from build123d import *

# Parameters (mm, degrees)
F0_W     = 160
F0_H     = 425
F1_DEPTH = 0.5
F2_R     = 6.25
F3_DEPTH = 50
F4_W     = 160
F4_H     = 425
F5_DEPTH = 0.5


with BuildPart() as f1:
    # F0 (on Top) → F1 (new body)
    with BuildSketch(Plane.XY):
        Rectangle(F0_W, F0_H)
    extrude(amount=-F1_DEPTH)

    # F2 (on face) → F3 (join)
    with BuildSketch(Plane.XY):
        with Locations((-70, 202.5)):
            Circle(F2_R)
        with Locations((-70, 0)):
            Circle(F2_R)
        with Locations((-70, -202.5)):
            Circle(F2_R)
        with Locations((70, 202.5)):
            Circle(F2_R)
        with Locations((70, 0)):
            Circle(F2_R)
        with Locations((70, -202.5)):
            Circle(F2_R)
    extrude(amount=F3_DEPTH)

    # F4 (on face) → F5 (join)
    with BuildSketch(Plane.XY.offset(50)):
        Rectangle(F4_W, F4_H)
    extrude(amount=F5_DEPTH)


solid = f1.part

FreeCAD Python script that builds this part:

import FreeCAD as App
import Part
import Sketcher
Q = App.Units.Quantity

doc = App.newDocument("Part")
body = doc.addObject("PartDesign::Body", "Body")

# Sketch on XY plane
sketch1 = doc.addObject("Sketcher::SketchObject", "Sketch")
body.addObject(sketch1)
sketch1.AttachmentSupport = (doc.XY_Plane, [""])
sketch1.MapMode = "FlatFace"
sketch1.addGeometry(Part.LineSegment(App.Vector(-80, 212.5, 0), App.Vector(-80, -212.5, 0)), False)
sketch1.addGeometry(Part.LineSegment(App.Vector(-80, -212.5, 0), App.Vector(80, -212.5, 0)), False)
sketch1.addGeometry(Part.LineSegment(App.Vector(80, -212.5, 0), App.Vector(80, 212.5, 0)), False)
sketch1.addGeometry(Part.LineSegment(App.Vector(80, 212.5, 0), App.Vector(-80, 212.5, 0)), False)
sketch1.addConstraint(Sketcher.Constraint("Coincident", 0, 2, 1, 1))
sketch1.addConstraint(Sketcher.Constraint("Coincident", 1, 2, 2, 1))
sketch1.addConstraint(Sketcher.Constraint("Coincident", 2, 2, 3, 1))
sketch1.addConstraint(Sketcher.Constraint("Coincident", 3, 2, 0, 1))
sketch1.addConstraint(Sketcher.Constraint("Vertical", 0))
sketch1.addConstraint(Sketcher.Constraint("Horizontal", 1))
sketch1.addConstraint(Sketcher.Constraint("Vertical", 2))
sketch1.addConstraint(Sketcher.Constraint("Horizontal", 3))
sketch1.addConstraint(Sketcher.Constraint("Symmetric", 0, 2, 2, 2, -1, 1))
sketch1.addConstraint(Sketcher.Constraint("DistanceX", 1, 1, 1, 2, Q("160 mm")))
sketch1.addConstraint(Sketcher.Constraint("DistanceY", 0, 2, 0, 1, Q("425 mm")))
pad1 = doc.addObject("PartDesign::Pad", "Pad")
body.addObject(pad1)
pad1.Profile = sketch1
pad1.Length = 0.5
pad1.Reversed = True

# Sketch on XY plane
sketch2 = doc.addObject("Sketcher::SketchObject", "Sketch001")
body.addObject(sketch2)
sketch2.AttachmentSupport = (doc.XY_Plane, [""])
sketch2.MapMode = "FlatFace"
sketch2.addGeometry(Part.Circle(App.Vector(-70, 202.5, 0), App.Vector(0, 0, 1), 6.25), False)
sketch2.addGeometry(Part.Circle(App.Vector(-70, 0, 0), App.Vector(0, 0, 1), 6.25), False)
sketch2.addGeometry(Part.Circle(App.Vector(-70, -202.5, 0), App.Vector(0, 0, 1), 6.25), False)
sketch2.addGeometry(Part.Circle(App.Vector(70, 202.5, 0), App.Vector(0, 0, 1), 6.25), False)
sketch2.addGeometry(Part.Circle(App.Vector(70, 0, 0), App.Vector(0, 0, 1), 6.25), False)
sketch2.addGeometry(Part.Circle(App.Vector(70, -202.5, 0), App.Vector(0, 0, 1), 6.25), False)
sketch2.addConstraint(Sketcher.Constraint("Equal", 0, 1))
sketch2.addConstraint(Sketcher.Constraint("Equal", 1, 2))
sketch2.addConstraint(Sketcher.Constraint("Equal", 2, 3))
sketch2.addConstraint(Sketcher.Constraint("Equal", 3, 4))
sketch2.addConstraint(Sketcher.Constraint("Equal", 4, 5))
sketch2.addConstraint(Sketcher.Constraint("Symmetric", 2, 3, 3, 3, -1, 1))
sketch2.addConstraint(Sketcher.Constraint("Symmetric", 1, 3, 4, 3, -1, 1))
sketch2.addConstraint(Sketcher.Constraint("Symmetric", 0, 3, 5, 3, -1, 1))
sketch2.addConstraint(Sketcher.Constraint("Symmetric", 0, 3, 3, 3, -2))
sketch2.addConstraint(Sketcher.Constraint("PointOnObject", 1, 3, -1))
sketch2.addConstraint(Sketcher.Constraint("Vertical", 0, 3, 1, 3))
sketch2.addConstraint(Sketcher.Constraint("Diameter", 0, Q("12.5 mm")))
sketch2.addConstraint(Sketcher.Constraint("DistanceX", 0, 3, -1, 1, Q("70 mm")))
sketch2.addConstraint(Sketcher.Constraint("DistanceY", 2, 3, 0, 3, Q("405 mm")))
pad2 = doc.addObject("PartDesign::Pad", "Pad001")
body.addObject(pad2)
pad2.Profile = sketch2
pad2.Length = 50

# Sketch on XY plane
sketch3 = doc.addObject("Sketcher::SketchObject", "Sketch002")
body.addObject(sketch3)
sketch3.AttachmentSupport = (doc.XY_Plane, [""])
sketch3.MapMode = "FlatFace"
sketch3.AttachmentOffset = App.Placement(App.Vector(0, 0, 50), App.Rotation())
sketch3.addGeometry(Part.LineSegment(App.Vector(-80, 212.5, 0), App.Vector(-80, -212.5, 0)), False)
sketch3.addGeometry(Part.LineSegment(App.Vector(-80, -212.5, 0), App.Vector(80, -212.5, 0)), False)
sketch3.addGeometry(Part.LineSegment(App.Vector(80, -212.5, 0), App.Vector(80, 212.5, 0)), False)
sketch3.addGeometry(Part.LineSegment(App.Vector(80, 212.5, 0), App.Vector(-80, 212.5, 0)), False)
sketch3.addConstraint(Sketcher.Constraint("Coincident", 0, 2, 1, 1))
sketch3.addConstraint(Sketcher.Constraint("Coincident", 1, 2, 2, 1))
sketch3.addConstraint(Sketcher.Constraint("Coincident", 2, 2, 3, 1))
sketch3.addConstraint(Sketcher.Constraint("Coincident", 3, 2, 0, 1))
sketch3.addConstraint(Sketcher.Constraint("Vertical", 0))
sketch3.addConstraint(Sketcher.Constraint("Horizontal", 1))
sketch3.addConstraint(Sketcher.Constraint("Vertical", 2))
sketch3.addConstraint(Sketcher.Constraint("Horizontal", 3))
sketch3.addConstraint(Sketcher.Constraint("Symmetric", 0, 2, 2, 2, -1, 1))
sketch3.addConstraint(Sketcher.Constraint("DistanceX", 1, 1, 1, 2, Q("160 mm")))
sketch3.addConstraint(Sketcher.Constraint("DistanceY", 0, 2, 0, 1, Q("425 mm")))
pad3 = doc.addObject("PartDesign::Pad", "Pad002")
body.addObject(pad3)
pad3.Profile = sketch3
pad3.Length = 0.5

doc.recompute()
